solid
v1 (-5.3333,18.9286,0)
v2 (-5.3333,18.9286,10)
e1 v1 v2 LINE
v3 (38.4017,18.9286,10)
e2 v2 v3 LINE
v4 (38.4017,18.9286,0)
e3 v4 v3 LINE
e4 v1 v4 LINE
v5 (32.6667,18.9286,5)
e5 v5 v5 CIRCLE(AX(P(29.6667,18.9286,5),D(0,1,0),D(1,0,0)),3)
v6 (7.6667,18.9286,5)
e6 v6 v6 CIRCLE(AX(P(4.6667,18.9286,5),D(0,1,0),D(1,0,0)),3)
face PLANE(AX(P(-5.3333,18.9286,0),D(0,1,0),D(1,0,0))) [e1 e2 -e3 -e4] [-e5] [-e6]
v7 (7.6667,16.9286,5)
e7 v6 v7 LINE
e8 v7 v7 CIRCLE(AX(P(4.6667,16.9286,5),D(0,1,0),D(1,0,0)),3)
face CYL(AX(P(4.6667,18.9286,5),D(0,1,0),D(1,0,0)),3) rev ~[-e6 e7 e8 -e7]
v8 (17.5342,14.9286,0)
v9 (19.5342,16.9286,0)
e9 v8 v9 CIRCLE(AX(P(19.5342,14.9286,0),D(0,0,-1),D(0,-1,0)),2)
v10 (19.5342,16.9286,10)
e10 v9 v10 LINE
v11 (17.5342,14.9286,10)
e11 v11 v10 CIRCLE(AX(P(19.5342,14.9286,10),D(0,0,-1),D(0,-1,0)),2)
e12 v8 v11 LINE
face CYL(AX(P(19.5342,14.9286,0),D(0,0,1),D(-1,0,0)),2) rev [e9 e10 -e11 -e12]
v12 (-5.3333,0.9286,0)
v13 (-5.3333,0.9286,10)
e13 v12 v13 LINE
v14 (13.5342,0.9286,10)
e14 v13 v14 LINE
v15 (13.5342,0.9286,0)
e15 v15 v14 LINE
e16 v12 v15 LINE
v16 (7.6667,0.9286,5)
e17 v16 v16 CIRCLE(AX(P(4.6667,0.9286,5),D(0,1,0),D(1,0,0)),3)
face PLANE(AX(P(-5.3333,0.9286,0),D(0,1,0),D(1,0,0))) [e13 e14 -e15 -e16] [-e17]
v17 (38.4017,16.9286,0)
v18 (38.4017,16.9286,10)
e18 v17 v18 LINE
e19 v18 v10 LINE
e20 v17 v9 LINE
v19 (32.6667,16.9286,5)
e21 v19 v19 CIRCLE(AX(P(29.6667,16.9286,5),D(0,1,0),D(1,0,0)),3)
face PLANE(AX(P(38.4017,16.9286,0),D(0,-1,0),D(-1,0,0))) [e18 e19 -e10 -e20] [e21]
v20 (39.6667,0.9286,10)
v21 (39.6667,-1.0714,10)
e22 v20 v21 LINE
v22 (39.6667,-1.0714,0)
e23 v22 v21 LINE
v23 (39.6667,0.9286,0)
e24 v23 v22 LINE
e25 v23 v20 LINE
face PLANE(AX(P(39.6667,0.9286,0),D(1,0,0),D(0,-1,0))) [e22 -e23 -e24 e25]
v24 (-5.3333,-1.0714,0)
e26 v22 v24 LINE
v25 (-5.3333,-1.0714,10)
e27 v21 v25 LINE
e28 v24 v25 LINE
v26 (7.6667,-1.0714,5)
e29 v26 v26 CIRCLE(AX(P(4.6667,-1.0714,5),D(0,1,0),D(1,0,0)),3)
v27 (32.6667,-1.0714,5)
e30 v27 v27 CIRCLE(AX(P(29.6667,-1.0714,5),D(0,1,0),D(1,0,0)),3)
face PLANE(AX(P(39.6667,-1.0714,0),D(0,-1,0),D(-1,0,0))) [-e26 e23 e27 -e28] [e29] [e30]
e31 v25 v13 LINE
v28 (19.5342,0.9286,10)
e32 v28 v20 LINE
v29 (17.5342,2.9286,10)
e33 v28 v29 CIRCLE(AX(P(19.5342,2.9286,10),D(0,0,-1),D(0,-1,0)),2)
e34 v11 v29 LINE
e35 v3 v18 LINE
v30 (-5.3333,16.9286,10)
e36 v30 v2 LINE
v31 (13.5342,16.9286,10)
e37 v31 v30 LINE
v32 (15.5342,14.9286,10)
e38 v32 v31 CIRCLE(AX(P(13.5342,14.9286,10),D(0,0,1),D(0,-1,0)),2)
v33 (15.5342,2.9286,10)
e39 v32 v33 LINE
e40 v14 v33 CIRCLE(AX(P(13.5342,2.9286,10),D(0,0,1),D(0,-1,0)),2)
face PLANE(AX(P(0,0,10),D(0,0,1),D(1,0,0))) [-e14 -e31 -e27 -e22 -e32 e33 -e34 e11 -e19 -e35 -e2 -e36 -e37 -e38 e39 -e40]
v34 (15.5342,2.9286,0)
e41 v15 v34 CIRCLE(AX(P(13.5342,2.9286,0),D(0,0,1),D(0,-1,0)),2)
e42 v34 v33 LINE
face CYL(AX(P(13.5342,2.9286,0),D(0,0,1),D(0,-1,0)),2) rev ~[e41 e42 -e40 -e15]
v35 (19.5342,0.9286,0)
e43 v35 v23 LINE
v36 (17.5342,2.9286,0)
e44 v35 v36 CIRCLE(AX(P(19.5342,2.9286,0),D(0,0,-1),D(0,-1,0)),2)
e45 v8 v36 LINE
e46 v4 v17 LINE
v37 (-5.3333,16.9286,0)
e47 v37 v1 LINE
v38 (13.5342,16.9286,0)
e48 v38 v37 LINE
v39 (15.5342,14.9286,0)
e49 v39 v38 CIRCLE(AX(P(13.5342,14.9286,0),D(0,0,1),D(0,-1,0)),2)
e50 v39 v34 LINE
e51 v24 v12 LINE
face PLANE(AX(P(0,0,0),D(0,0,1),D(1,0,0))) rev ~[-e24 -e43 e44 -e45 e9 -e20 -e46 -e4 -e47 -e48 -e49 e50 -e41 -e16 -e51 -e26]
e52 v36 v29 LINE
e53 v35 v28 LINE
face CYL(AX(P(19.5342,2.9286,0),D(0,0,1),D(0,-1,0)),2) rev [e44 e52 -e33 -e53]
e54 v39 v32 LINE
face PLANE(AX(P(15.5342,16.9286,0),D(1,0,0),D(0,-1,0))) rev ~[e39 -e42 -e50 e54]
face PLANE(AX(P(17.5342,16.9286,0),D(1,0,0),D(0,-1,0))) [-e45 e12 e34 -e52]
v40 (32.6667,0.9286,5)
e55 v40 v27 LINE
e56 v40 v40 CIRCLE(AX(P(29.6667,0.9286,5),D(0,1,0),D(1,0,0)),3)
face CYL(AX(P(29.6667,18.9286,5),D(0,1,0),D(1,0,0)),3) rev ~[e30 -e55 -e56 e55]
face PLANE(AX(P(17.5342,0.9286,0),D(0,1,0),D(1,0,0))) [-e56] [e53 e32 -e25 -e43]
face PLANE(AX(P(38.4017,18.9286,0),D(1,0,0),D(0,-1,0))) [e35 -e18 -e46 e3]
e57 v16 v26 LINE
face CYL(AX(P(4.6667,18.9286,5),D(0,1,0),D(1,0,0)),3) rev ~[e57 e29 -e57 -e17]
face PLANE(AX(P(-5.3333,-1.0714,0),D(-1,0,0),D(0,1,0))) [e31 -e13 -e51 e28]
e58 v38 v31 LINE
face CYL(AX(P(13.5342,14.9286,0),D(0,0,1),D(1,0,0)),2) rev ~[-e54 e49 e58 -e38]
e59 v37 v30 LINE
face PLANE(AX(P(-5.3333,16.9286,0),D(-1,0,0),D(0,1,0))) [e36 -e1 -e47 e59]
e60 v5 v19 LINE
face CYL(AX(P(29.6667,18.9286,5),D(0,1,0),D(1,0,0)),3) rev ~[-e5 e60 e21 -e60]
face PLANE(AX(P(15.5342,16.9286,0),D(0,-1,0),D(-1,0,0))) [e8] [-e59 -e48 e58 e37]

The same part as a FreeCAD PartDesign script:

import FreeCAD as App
import Part
import Sketcher

V = App.Vector


def edges_at(feature, points):
    """Names of the edges that pass closest to the given points."""
    edges = feature.Shape.Edges
    near = lambda p: min(range(len(edges)), key=lambda i: edges[i].distToShape(Part.Vertex(*p))[0])
    return sorted({f"Edge{near(p) + 1}" for p in points})

doc = App.newDocument("Part")
body = doc.addObject("PartDesign::Body", "Body")

sketch1 = doc.addObject("Sketcher::SketchObject", "Sketch")
body.addObject(sketch1)
sketch1.AttachmentSupport = (doc.XY_Plane, [""])
sketch1.MapMode = "FlatFace"
sketch1.addGeometry([
    Part.LineSegment(V(15.5, 0.9, 0), V(-5.3, 0.9, 0)),
    Part.LineSegment(V(-5.3, 0.9, 0), V(-5.3, -1.1, 0)),
    Part.LineSegment(V(-5.3, -1.1, 0), V(39.7, -1.1, 0)),
    Part.LineSegment(V(39.7, -1.1, 0), V(39.7, 0.9, 0)),
    Part.LineSegment(V(39.7, 0.9, 0), V(17.5, 0.9, 0)),
    Part.LineSegment(V(17.5, 0.9, 0), V(17.5, 16.9, 0)),
    Part.LineSegment(V(17.5, 16.9, 0), V(38.4, 16.9, 0)),
    Part.LineSegment(V(38.4, 16.9, 0), V(38.4, 18.9, 0)),
    Part.LineSegment(V(38.4, 18.9, 0), V(-5.3, 18.9, 0)),
    Part.LineSegment(V(-5.3, 18.9, 0), V(-5.3, 16.9, 0)),
    Part.LineSegment(V(-5.3, 16.9, 0), V(15.5, 16.9, 0)),
    Part.LineSegment(V(15.5, 16.9, 0), V(15.5, 0.9, 0)),
], False)
sketch1.addConstraint([
    Sketcher.Constraint("Coincident", 0, 2, 1, 1),
    Sketcher.Constraint("Coincident", 1, 2, 2, 1),
    Sketcher.Constraint("Coincident", 2, 2, 3, 1),
    Sketcher.Constraint("Coincident", 3, 2, 4, 1),
    Sketcher.Constraint("Coincident", 4, 2, 5, 1),
    Sketcher.Constraint("Coincident", 5, 2, 6, 1),
    Sketcher.Constraint("Coincident", 6, 2, 7, 1),
    Sketcher.Constraint("Coincident", 7, 2, 8, 1),
    Sketcher.Constraint("Coincident", 8, 2, 9, 1),
    Sketcher.Constraint("Coincident", 9, 2, 10, 1),
    Sketcher.Constraint("Coincident", 10, 2, 11, 1),
    Sketcher.Constraint("Coincident", 11, 2, 0, 1),
    Sketcher.Constraint("Horizontal", 0),
    Sketcher.Constraint("Vertical", 1),
    Sketcher.Constraint("Horizontal", 2),
    Sketcher.Constraint("Vertical", 3),
    Sketcher.Constraint("Horizontal", 4),
    Sketcher.Constraint("Vertical", 5),
    Sketcher.Constraint("Horizontal", 6),
    Sketcher.Constraint("Vertical", 7),
    Sketcher.Constraint("Horizontal", 8),
    Sketcher.Constraint("Vertical", 9),
    Sketcher.Constraint("Horizontal", 10),
    Sketcher.Constraint("Vertical", 11),
    Sketcher.Constraint("Horizontal", 0, 2, 3, 2),
    Sketcher.Constraint("Horizontal", 6, 2, 9, 2),
    Sketcher.Constraint("Vertical", 1, 2, 8, 2),
    Sketcher.Constraint("Equal", 0, 6),
    Sketcher.Constraint("Equal", 3, 7),
    Sketcher.Constraint("DistanceX", 2, 1, 2, 2, 45.0),
    Sketcher.Constraint("DistanceY", 1, 2, 1, 1, 2.0),
    Sketcher.Constraint("DistanceY", 2, 2, 7, 2, 20.0),
    Sketcher.Constraint("DistanceX", 10, 2, 5, 2, 2.0),
    Sketcher.Constraint("DistanceX", 8, 2, 8, 1, 43.735),
    Sketcher.Constraint("DistanceX", 0, 2, -1, 1, 5.3333),
    Sketcher.Constraint("DistanceY", -1, 1, 0, 2, 0.9286),
])
pad1 = doc.addObject("PartDesign::Pad", "Pad")
body.addObject(pad1)
pad1.Profile = sketch1
pad1.Length = 10

sketch2 = doc.addObject("Sketcher::SketchObject", "Sketch001")
body.addObject(sketch2)
sketch2.AttachmentSupport = (doc.XZ_Plane, [""])
sketch2.MapMode = "FlatFace"
sketch2.AttachmentOffset = App.Placement(V(0, 0, -18.9286), App.Rotation())
sketch2.addGeometry([
    Part.Circle(V(4.7, 5, 0), V(0, 0, 1), 3),
    Part.Circle(V(29.7, 5, 0), V(0, 0, 1), 3),
], False)
sketch2.addConstraint([
    Sketcher.Constraint("Equal", 0, 1),
    Sketcher.Constraint("Horizontal", 0, 3, 1, 3),
    Sketcher.Constraint("Diameter", 0, 6.0),
    Sketcher.Constraint("DistanceY", -1, 1, 0, 3, 5.0),
    Sketcher.Constraint("DistanceX", 0, 3, 1, 3, 25.0),
    Sketcher.Constraint("DistanceX", -1, 1, 0, 3, 4.6667),
])
pocket1 = doc.addObject("PartDesign::Pocket", "Pocket")
body.addObject(pocket1)
pocket1.Profile = sketch2
pocket1.Length = 20
pocket1.Reversed = True
doc.recompute()

fillet = doc.addObject("PartDesign::Fillet", "Fillet")
body.addObject(fillet)
fillet.Base = (pocket1, edges_at(pocket1, [
    (17.534, 0.929, 5),
    (15.534, 0.929, 5),
    (17.534, 16.929, 5),
    (15.534, 16.929, 5),
]))
fillet.Radius = 2

doc.recompute()
